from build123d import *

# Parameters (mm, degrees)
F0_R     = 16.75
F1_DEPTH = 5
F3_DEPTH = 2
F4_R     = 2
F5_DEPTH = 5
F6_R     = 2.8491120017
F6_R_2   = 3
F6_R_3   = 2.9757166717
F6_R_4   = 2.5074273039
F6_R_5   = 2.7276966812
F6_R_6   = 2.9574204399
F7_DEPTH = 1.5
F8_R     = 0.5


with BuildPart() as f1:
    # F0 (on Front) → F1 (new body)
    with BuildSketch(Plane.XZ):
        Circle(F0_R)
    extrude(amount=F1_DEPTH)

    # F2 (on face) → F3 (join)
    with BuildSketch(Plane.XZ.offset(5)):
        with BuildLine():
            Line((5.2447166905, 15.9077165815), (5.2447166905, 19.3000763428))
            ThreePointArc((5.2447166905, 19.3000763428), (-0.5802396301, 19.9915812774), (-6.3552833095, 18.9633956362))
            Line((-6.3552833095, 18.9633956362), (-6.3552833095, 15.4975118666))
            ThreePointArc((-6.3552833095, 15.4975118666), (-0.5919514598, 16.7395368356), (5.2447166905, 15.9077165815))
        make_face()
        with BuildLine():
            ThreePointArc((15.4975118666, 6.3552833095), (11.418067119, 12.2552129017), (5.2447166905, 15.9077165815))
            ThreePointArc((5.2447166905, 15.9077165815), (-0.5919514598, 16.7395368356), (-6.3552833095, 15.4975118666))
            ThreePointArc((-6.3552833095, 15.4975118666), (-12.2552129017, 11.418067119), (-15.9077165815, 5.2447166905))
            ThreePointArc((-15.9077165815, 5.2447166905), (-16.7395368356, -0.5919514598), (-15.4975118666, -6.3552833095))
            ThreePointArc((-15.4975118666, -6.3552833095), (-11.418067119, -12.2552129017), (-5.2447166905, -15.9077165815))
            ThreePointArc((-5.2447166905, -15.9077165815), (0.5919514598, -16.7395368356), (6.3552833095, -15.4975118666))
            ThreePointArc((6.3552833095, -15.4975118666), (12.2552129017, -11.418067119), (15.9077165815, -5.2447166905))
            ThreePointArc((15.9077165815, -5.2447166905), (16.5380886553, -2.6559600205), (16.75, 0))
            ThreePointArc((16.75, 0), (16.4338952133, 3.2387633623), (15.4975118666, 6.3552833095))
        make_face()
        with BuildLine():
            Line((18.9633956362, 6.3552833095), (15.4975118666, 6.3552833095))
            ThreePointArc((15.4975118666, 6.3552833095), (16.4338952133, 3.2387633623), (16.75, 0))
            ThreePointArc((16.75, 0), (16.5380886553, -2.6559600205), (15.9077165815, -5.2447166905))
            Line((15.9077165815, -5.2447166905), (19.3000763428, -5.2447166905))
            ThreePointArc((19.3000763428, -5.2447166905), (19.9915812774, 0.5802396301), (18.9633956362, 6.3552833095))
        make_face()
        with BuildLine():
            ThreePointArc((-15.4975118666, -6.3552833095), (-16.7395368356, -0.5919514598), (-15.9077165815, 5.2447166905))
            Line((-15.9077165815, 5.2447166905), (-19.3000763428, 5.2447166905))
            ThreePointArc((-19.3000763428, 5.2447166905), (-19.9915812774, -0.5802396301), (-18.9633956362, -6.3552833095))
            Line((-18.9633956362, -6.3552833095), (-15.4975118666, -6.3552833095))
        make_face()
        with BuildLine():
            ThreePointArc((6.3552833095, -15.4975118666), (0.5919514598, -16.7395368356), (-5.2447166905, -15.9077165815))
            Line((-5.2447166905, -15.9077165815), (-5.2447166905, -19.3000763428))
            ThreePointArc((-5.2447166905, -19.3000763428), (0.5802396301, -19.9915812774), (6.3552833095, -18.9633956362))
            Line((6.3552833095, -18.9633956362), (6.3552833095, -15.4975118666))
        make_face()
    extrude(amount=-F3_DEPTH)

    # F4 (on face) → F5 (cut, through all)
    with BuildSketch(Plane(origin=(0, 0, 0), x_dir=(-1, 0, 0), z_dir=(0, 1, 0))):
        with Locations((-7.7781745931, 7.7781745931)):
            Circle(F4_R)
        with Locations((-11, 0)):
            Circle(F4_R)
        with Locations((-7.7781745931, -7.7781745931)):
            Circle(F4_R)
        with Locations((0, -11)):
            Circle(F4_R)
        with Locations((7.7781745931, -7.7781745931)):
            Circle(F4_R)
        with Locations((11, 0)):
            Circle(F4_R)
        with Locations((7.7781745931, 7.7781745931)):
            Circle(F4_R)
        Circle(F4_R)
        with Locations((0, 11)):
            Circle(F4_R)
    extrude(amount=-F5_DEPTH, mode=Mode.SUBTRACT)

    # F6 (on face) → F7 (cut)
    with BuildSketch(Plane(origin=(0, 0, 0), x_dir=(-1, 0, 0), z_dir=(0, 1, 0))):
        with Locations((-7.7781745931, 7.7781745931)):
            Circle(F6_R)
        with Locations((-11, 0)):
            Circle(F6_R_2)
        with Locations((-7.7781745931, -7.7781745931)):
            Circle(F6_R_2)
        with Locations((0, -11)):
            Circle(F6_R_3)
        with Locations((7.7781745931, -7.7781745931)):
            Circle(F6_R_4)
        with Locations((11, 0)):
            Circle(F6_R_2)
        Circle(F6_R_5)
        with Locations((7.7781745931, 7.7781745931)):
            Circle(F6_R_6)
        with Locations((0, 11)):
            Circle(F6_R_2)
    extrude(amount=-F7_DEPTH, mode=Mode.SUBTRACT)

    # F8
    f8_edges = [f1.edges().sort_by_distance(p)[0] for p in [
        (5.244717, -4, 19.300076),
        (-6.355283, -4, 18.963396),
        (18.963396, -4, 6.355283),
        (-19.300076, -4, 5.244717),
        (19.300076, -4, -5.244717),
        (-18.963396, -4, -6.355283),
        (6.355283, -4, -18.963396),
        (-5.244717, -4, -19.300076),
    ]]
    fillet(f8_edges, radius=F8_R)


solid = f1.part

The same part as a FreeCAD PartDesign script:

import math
import FreeCAD as App
import Part
import Sketcher

V = App.Vector
Q = App.Units.Quantity


def edges_at(feature, points):
    """Names of the edges that pass closest to the given points."""
    edges = feature.Shape.Edges
    near = lambda p: min(range(len(edges)), key=lambda i: edges[i].distToShape(Part.Vertex(*p))[0])
    return sorted({f"Edge{near(p) + 1}" for p in points})

doc = App.newDocument("Part")
body = doc.addObject("PartDesign::Body", "Body")

# Sketch on XZ plane
sketch1 = body.newObject("Sketcher::SketchObject", "Sketch")
sketch1.AttachmentSupport = (doc.getObject("XZ_Plane"), [""])
sketch1.MapMode = "FlatFace"
sketch1.addGeometry(Part.Circle(V(0, 0, 0), V(0, 0, 1), 16.75), False)
sketch1.addConstraint([
    Sketcher.Constraint("Coincident", 0, 3, -1, 1),
    Sketcher.Constraint("Diameter", 0, Q("33.5 mm")),
])
pad1 = body.newObject("PartDesign::Pad", "Pad")
pad1.Profile = sketch1
pad1.Length = 5

# Sketch on XZ plane
sketch2 = body.newObject("Sketcher::SketchObject", "Sketch001")
sketch2.AttachmentSupport = (doc.getObject("XZ_Plane"), [""])
sketch2.MapMode = "FlatFace"
sketch2.AttachmentOffset = App.Placement(V(0, 0, 5), App.Rotation())
sketch2.addGeometry([
    Part.LineSegment(V(5.244717, 15.907717, 0), V(5.244717, 19.300076, 0)),  # 0
    Part.ArcOfCircle(Part.Circle(V(0, 0, 0), V(0, 0, 1), 20), math.radians(74.79723), math.radians(108.527765)),  # 1
    Part.LineSegment(V(-6.355283, 18.963396, 0), V(-6.355283, 15.497512, 0)),  # 2
    Part.ArcOfCircle(Part.Circle(V(0, 0, 0), V(0, 0, 1), 16.75), math.radians(112.297755), math.radians(161.752799)),  # 3
    Part.LineSegment(V(-15.907717, 5.244717, 0), V(-19.300076, 5.244717, 0)),  # 4
    Part.ArcOfCircle(Part.Circle(V(0, 0, 0), V(0, 0, 1), 20), math.radians(164.79723), math.radians(198.527765)),  # 5
    Part.LineSegment(V(-18.963396, -6.355283, 0), V(-15.497512, -6.355283, 0)),  # 6
    Part.ArcOfCircle(Part.Circle(V(0, 0, 0), V(0, 0, 1), 16.75), math.radians(-157.702245), math.radians(-108.247201)),  # 7
    Part.LineSegment(V(-5.244717, -15.907717, 0), V(-5.244717, -19.300076, 0)),  # 8
    Part.ArcOfCircle(Part.Circle(V(0, 0, 0), V(0, 0, 1), 20), math.radians(-105.20277), math.radians(-71.472235)),  # 9
    Part.LineSegment(V(6.355283, -18.963396, 0), V(6.355283, -15.497512, 0)),  # 10
    Part.ArcOfCircle(Part.Circle(V(0, 0, 0), V(0, 0, 1), 16.75), math.radians(-67.702245), math.radians(-18.247201)),  # 11
    Part.LineSegment(V(15.907717, -5.244717, 0), V(19.300076, -5.244717, 0)),  # 12
    Part.ArcOfCircle(Part.Circle(V(0, 0, 0), V(0, 0, 1), 20), math.radians(-15.20277), math.radians(18.527765)),  # 13
    Part.LineSegment(V(18.963396, 6.355283, 0), V(15.497512, 6.355283, 0)),  # 14
    Part.ArcOfCircle(Part.Circle(V(0, 0, 0), V(0, 0, 1), 16.75), math.radians(22.297755), math.radians(71.752799)),  # 15
], False)
sketch2.addConstraint([
    Sketcher.Constraint("Coincident", 0, 2, 1, 1),
    Sketcher.Constraint("Coincident", 1, 2, 2, 1),
    Sketcher.Constraint("Coincident", 2, 2, 3, 1),
    Sketcher.Constraint("Coincident", 3, 2, 4, 1),
    Sketcher.Constraint("Coincident", 4, 2, 5, 1),
    Sketcher.Constraint("Coincident", 5, 2, 6, 1),
    Sketcher.Constraint("Coincident", 6, 2, 7, 1),
    Sketcher.Constraint("Coincident", 7, 2, 8, 1),
    Sketcher.Constraint("Coincident", 8, 2, 9, 1),
    Sketcher.Constraint("Coincident", 9, 2, 10, 1),
    Sketcher.Constraint("Coincident", 10, 2, 11, 1),
    Sketcher.Constraint("Coincident", 11, 2, 12, 1),
    Sketcher.Constraint("Coincident", 12, 2, 13, 1),
    Sketcher.Constraint("Coincident", 13, 2, 14, 1),
    Sketcher.Constraint("Coincident", 14, 2, 15, 1),
    Sketcher.Constraint("Coincident", 15, 2, 0, 1),
    Sketcher.Constraint("Vertical", 0),
    Sketcher.Constraint("Vertical", 2),
    Sketcher.Constraint("Horizontal", 4),
    Sketcher.Constraint("Horizontal", 6),
    Sketcher.Constraint("Vertical", 8),
    Sketcher.Constraint("Vertical", 10),
    Sketcher.Constraint("Horizontal", 12),
    Sketcher.Constraint("Horizontal", 14),
    Sketcher.Constraint("Coincident", 1, 3, -1, 1),
    Sketcher.Constraint("Coincident", 3, 3, -1, 1),
    Sketcher.Constraint("Coincident", 5, 3, -1, 1),
    Sketcher.Constraint("Coincident", 7, 3, -1, 1),
    Sketcher.Constraint("Coincident", 9, 3, -1, 1),
    Sketcher.Constraint("Coincident", 11, 3, -1, 1),
    Sketcher.Constraint("Coincident", 13, 3, -1, 1),
    Sketcher.Constraint("Coincident", 15, 3, -1, 1),
    Sketcher.Constraint("Equal", 1, 5),
    Sketcher.Constraint("Equal", 3, 7),
    Sketcher.Constraint("Equal", 5, 9),
    Sketcher.Constraint("Equal", 7, 11),
    Sketcher.Constraint("Equal", 9, 13),
    Sketcher.Constraint("Equal", 11, 15),
    Sketcher.Constraint("Equal", 4, 12),
    Sketcher.Constraint("Equal", 6, 14),
    Sketcher.Constraint("Equal", 12, 0),
    Sketcher.Constraint("Equal", 14, 2),
    Sketcher.Constraint("Equal", 0, 8),
    Sketcher.Constraint("Equal", 2, 10),
    Sketcher.Constraint("Radius", 1, Q("20 mm")),
    Sketcher.Constraint("Radius", 3, Q("16.75 mm")),
    Sketcher.Constraint("DistanceX", 1, 2, 0, 2, Q("11.6 mm")),
    Sketcher.Constraint("DistanceX", 4, 2, 4, 1, Q("3.39236 mm")),
])
pad2 = body.newObject("PartDesign::Pad", "Pad001")
pad2.Profile = sketch2
pad2.Length = 2
pad2.Reversed = True

# Sketch on XZ plane
sketch3 = body.newObject("Sketcher::SketchObject", "Sketch002")
sketch3.AttachmentSupport = (doc.getObject("XZ_Plane"), [""])
sketch3.MapMode = "FlatFace"
sketch3.addGeometry([
    Part.Circle(V(7.778175, 7.778175, 0), V(0, 0, 1), 2),  # 0
    Part.Circle(V(11, 0, 0), V(0, 0, 1), 2),  # 1
    Part.Circle(V(7.778175, -7.778175, 0), V(0, 0, 1), 2),  # 2
    Part.Circle(V(0, -11, 0), V(0, 0, 1), 2),  # 3
    Part.Circle(V(-7.778175, -7.778175, 0), V(0, 0, 1), 2),  # 4
    Part.Circle(V(-11, 0, 0), V(0, 0, 1), 2),  # 5
    Part.Circle(V(-7.778175, 7.778175, 0), V(0, 0, 1), 2),  # 6
    Part.Circle(V(0, 0, 0), V(0, 0, 1), 2),  # 7
    Part.Circle(V(0, 11, 0), V(0, 0, 1), 2),  # 8
], False)
sketch3.addConstraint([
    Sketcher.Constraint("Coincident", 7, 3, -1, 1),
    Sketcher.Constraint("Equal", 0, 1),
    Sketcher.Constraint("Equal", 1, 2),
    Sketcher.Constraint("Equal", 2, 3),
    Sketcher.Constraint("Equal", 3, 4),
    Sketcher.Constraint("Equal", 4, 5),
    Sketcher.Constraint("Equal", 5, 6),
    Sketcher.Constraint("Equal", 6, 7),
    Sketcher.Constraint("Equal", 7, 8),
    Sketcher.Constraint("Symmetric", 0, 3, 4, 3, -1, 1),
    Sketcher.Constraint("Symmetric", 1, 3, 5, 3, -1, 1),
    Sketcher.Constraint("Symmetric", 2, 3, 6, 3, -1, 1),
    Sketcher.Constraint("Symmetric", 3, 3, 8, 3, -1, 1),
    Sketcher.Constraint("Symmetric", 2, 3, 4, 3, -2),
    Sketcher.Constraint("PointOnObject", 1, 3, -1),
    Sketcher.Constraint("PointOnObject", 3, 3, -2),
    Sketcher.Constraint("Diameter", 0, Q("4 mm")),
    Sketcher.Constraint("DistanceX", -1, 1, 1, 3, Q("11 mm")),
    Sketcher.Constraint("DistanceY", 3, 3, -1, 1, Q("11 mm")),
    Sketcher.Constraint("DistanceY", 2, 3, 0, 3, Q("15.556349 mm")),
    Sketcher.Constraint("DistanceX", 4, 3, 2, 3, Q("15.556349 mm")),
])
pocket1 = body.newObject("PartDesign::Pocket", "Pocket")
pocket1.Profile = sketch3
pocket1.Type = "ThroughAll"
pocket1.Reversed = True

# Sketch on XZ plane
sketch4 = body.newObject("Sketcher::SketchObject", "Sketch003")
sketch4.AttachmentSupport = (doc.getObject("XZ_Plane"), [""])
sketch4.MapMode = "FlatFace"
sketch4.addGeometry([
    Part.Circle(V(7.778175, 7.778175, 0), V(0, 0, 1), 2.849112),  # 0
    Part.Circle(V(11, 0, 0), V(0, 0, 1), 3),  # 1
    Part.Circle(V(7.778175, -7.778175, 0), V(0, 0, 1), 3),  # 2
    Part.Circle(V(0, -11, 0), V(0, 0, 1), 2.975717),  # 3
    Part.Circle(V(-7.778175, -7.778175, 0), V(0, 0, 1), 2.507427),  # 4
    Part.Circle(V(-11, 0, 0), V(0, 0, 1), 3),  # 5
    Part.Circle(V(0, 0, 0), V(0, 0, 1), 2.727697),  # 6
    Part.Circle(V(-7.778175, 7.778175, 0), V(0, 0, 1), 2.95742),  # 7
    Part.Circle(V(0, 11, 0), V(0, 0, 1), 3),  # 8
], False)
sketch4.addConstraint([
    Sketcher.Constraint("Coincident", 6, 3, -1, 1),
    Sketcher.Constraint("Equal", 1, 2),
    Sketcher.Constraint("Equal", 2, 5),
    Sketcher.Constraint("Equal", 5, 8),
    Sketcher.Constraint("Symmetric", 0, 3, 4, 3, -1, 1),
    Sketcher.Constraint("Symmetric", 1, 3, 5, 3, -1, 1),
    Sketcher.Constraint("Symmetric", 2, 3, 7, 3, -1, 1),
    Sketcher.Constraint("Symmetric", 3, 3, 8, 3, -1, 1),
    Sketcher.Constraint("Symmetric", 2, 3, 4, 3, -2),
    Sketcher.Constraint("PointOnObject", 1, 3, -1),
    Sketcher.Constraint("PointOnObject", 3, 3, -2),
    Sketcher.Constraint("Diameter", 1, Q("6 mm")),
    Sketcher.Constraint("DistanceX", -1, 1, 1, 3, Q("11 mm")),
    Sketcher.Constraint("DistanceY", 3, 3, -1, 1, Q("11 mm")),
    Sketcher.Constraint("Diameter", 7, Q("5.914841 mm")),
    Sketcher.Constraint("Diameter", 0, Q("5.698224 mm")),
    Sketcher.Constraint("Diameter", 3, Q("5.951433 mm")),
    Sketcher.Constraint("Diameter", 4, Q("5.014855 mm")),
    Sketcher.Constraint("Diameter", 6, Q("5.455393 mm")),
    Sketcher.Constraint("DistanceY", 2, 3, 0, 3, Q("15.556349 mm")),
    Sketcher.Constraint("DistanceX", 4, 3, 2, 3, Q("15.556349 mm")),
])
pocket2 = body.newObject("PartDesign::Pocket", "Pocket001")
pocket2.Profile = sketch4
pocket2.Length = 1.5
pocket2.Reversed = True
doc.recompute()

fillet = body.newObject("PartDesign::Fillet", "Fillet")
fillet.Base = (pocket2, edges_at(pocket2, [
    (5.245, -4, 19.3),
    (-6.355, -4, 18.963),
    (18.963, -4, 6.355),
    (-19.3, -4, 5.245),
    (19.3, -4, -5.245),
    (-18.963, -4, -6.355),
    (6.355, -4, -18.963),
    (-5.245, -4, -19.3),
]))
fillet.Radius = 0.5

doc.recompute()
